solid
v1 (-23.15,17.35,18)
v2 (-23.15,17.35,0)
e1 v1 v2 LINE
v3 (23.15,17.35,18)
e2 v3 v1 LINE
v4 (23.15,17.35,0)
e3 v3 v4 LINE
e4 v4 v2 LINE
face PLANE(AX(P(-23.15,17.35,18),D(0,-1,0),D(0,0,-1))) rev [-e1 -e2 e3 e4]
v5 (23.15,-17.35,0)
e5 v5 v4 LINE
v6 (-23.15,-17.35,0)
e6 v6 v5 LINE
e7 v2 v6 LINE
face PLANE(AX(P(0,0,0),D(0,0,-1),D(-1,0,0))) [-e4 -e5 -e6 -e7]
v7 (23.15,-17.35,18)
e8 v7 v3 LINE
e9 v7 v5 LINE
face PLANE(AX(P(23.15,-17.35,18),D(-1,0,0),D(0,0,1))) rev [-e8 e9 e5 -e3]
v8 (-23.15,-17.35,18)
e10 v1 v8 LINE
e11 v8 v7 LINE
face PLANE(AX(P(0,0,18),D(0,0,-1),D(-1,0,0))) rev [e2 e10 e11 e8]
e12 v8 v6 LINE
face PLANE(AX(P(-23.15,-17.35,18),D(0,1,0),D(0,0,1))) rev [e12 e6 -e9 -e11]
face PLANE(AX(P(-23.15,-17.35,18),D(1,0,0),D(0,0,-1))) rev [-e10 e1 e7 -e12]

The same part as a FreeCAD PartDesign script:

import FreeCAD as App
import Part
import Sketcher
from FreeCAD import Vector
Q = App.Units.Quantity


def add_polygon(sketch, points):
    """Adds a closed chain of lines whose ends are joined by coincident constraints."""
    first, n = sketch.GeometryCount, len(points)
    for a, b in zip(points, points[1:] + points[:1]):
        sketch.addGeometry(Part.LineSegment(App.Vector(*a, 0), App.Vector(*b, 0)), False)
    for i in range(n):
        sketch.addConstraint(Sketcher.Constraint("Coincident", first + i, 2, first + (i + 1) % n, 1))

doc = App.newDocument("Part")
body = doc.addObject("PartDesign::Body", "Body")

# Sketch on XY plane
sketch1 = body.newObject("Sketcher::SketchObject", "Sketch")
sketch1.AttachmentSupport = (doc.getObject("XY_Plane"), [""])
sketch1.MapMode = "FlatFace"
add_polygon(sketch1, [(-23.15, 17.35), (-23.15, -17.35), (23.15, -17.35), (23.15, 17.35)])  # lines 0-3
sketch1.addConstraint([
    Sketcher.Constraint("Vertical", 0),
    Sketcher.Constraint("Horizontal", 1),
    Sketcher.Constraint("Vertical", 2),
    Sketcher.Constraint("Horizontal", 3),
    Sketcher.Constraint("Symmetric", 0, 2, 2, 2, -1, 1),
    Sketcher.Constraint("DistanceX", 1, 1, 1, 2, Q("46.3 mm")),
    Sketcher.Constraint("DistanceY", 0, 2, 0, 1, Q("34.7 mm")),
])
pad1 = body.newObject("PartDesign::Pad", "Pad")
pad1.Profile = sketch1
pad1.Length = 18

doc.recompute()
